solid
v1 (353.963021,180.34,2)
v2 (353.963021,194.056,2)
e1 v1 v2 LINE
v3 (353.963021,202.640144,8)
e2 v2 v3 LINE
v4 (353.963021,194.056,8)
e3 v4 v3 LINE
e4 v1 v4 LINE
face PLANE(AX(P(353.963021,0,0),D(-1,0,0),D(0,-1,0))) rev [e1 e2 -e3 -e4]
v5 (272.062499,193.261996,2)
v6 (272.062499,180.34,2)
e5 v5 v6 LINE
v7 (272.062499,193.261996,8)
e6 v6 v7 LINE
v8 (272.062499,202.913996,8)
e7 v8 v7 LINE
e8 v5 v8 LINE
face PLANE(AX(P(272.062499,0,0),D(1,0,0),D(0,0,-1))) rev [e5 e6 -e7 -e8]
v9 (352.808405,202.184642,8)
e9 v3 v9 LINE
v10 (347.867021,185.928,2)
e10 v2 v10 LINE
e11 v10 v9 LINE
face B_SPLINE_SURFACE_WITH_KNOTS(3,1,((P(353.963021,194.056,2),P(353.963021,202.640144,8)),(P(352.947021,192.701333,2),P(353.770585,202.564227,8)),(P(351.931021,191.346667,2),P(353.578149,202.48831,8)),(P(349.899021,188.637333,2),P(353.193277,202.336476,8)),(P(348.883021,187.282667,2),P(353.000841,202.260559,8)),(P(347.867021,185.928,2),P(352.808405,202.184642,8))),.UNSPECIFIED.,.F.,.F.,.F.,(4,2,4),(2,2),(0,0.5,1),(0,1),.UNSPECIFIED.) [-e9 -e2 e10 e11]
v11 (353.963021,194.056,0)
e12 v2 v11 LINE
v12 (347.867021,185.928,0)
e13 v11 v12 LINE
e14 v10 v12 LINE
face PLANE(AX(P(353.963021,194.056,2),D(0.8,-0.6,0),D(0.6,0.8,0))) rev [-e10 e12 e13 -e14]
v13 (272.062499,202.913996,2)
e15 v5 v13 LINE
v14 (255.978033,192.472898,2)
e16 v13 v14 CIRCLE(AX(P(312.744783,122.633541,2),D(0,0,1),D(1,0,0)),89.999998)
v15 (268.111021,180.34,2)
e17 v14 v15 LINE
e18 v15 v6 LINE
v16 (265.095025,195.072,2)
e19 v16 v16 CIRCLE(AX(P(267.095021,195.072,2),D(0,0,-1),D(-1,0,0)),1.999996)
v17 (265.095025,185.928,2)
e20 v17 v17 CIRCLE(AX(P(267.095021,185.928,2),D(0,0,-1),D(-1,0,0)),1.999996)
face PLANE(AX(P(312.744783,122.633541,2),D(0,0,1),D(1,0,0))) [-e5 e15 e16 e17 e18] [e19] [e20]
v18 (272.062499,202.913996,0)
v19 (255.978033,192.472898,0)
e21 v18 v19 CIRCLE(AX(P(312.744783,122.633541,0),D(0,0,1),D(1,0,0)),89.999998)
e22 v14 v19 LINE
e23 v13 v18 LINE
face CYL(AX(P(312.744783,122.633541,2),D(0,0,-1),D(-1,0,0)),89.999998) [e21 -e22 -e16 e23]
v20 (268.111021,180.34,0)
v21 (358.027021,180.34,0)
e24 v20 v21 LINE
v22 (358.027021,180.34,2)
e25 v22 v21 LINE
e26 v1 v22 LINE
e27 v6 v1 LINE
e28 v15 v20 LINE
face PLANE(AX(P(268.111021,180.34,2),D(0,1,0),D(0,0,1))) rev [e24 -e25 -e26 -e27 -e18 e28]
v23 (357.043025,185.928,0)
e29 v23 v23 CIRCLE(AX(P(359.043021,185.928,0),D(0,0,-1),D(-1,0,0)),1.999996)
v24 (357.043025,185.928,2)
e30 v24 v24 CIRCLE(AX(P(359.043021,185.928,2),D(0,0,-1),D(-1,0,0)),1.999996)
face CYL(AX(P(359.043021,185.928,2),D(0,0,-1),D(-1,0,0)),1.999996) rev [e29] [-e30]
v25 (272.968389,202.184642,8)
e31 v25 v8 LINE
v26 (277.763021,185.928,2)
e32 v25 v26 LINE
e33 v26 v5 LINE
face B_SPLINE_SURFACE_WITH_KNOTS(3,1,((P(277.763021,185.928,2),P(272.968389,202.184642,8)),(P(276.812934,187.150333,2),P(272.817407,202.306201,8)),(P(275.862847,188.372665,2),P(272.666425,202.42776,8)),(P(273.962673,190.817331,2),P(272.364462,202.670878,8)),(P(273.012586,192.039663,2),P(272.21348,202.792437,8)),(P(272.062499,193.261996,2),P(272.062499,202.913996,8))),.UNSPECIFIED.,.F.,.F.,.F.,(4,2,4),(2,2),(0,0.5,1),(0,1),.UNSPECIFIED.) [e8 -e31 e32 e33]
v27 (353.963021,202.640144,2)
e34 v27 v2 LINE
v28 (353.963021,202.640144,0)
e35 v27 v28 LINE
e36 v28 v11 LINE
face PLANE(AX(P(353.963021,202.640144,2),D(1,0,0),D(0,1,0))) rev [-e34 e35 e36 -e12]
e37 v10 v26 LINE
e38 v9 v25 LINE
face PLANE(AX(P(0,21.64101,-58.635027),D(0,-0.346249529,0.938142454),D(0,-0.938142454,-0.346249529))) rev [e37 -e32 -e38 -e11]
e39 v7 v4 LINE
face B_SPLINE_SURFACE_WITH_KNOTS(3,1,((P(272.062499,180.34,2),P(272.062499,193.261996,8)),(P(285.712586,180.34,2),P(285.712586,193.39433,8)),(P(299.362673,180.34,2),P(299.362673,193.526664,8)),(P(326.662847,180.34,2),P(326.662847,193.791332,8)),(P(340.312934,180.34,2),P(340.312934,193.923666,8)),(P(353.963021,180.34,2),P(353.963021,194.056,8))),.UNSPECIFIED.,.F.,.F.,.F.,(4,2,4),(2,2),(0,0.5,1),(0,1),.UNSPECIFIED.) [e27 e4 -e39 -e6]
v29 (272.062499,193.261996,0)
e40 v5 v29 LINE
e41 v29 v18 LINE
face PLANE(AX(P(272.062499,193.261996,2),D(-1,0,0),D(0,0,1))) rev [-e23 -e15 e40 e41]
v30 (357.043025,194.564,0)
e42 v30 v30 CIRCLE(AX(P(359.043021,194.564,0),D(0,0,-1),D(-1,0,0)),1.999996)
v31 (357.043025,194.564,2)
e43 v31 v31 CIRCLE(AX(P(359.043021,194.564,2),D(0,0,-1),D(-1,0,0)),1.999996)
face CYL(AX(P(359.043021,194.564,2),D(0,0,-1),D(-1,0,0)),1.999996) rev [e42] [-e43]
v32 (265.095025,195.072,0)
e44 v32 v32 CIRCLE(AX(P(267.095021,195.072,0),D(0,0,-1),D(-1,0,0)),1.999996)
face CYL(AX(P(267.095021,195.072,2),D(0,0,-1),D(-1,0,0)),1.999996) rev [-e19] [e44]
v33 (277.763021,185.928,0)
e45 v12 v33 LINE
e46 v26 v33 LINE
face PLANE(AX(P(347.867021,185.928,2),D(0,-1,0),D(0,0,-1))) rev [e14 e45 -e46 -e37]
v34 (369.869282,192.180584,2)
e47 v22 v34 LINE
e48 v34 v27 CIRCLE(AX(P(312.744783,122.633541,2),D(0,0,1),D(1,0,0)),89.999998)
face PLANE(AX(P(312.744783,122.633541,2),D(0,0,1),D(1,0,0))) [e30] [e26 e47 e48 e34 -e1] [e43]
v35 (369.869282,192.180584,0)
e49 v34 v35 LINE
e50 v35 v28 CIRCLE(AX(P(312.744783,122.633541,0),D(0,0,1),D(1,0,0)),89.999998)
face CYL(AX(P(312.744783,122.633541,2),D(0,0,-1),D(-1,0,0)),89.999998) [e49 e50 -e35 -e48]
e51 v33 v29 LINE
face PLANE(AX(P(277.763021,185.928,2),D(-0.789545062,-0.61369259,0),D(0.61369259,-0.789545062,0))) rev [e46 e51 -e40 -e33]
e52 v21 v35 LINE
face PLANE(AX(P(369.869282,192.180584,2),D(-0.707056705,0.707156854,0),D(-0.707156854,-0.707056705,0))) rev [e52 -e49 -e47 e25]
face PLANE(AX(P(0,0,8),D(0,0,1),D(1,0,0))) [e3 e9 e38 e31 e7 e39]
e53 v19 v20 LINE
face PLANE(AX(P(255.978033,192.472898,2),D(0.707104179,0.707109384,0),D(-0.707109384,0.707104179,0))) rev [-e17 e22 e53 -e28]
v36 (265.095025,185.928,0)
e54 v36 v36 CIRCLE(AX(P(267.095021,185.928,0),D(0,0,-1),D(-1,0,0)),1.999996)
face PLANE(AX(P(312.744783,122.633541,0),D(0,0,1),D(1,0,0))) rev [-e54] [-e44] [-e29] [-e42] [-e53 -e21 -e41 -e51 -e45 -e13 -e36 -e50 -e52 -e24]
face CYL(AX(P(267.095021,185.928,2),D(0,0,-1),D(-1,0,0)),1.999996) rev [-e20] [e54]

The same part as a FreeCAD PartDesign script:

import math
import FreeCAD as App
import Part
import Sketcher
Q = App.Units.Quantity

doc = App.newDocument("Part")
body = doc.addObject("PartDesign::Body", "Body")

sketch1 = body.newObject("Sketcher::SketchObject", "Sketch")
sketch1.AttachmentSupport = (doc.getObject("XY_Plane"), [""])
sketch1.MapMode = "FlatFace"
sketch1.addGeometry([
    Part.LineSegment(App.Vector(358, 180, 0), App.Vector(370, 192, 0)),
    Part.ArcOfCircle(Part.Circle(App.Vector(313, 123, 0), App.Vector(0, 0, 1), 90), math.radians(50.6), math.radians(62.74)),
    Part.LineSegment(App.Vector(354, 203, 0), App.Vector(354, 194, 0)),
    Part.LineSegment(App.Vector(354, 194, 0), App.Vector(348, 186, 0)),
    Part.LineSegment(App.Vector(348, 186, 0), App.Vector(278, 186, 0)),
    Part.LineSegment(App.Vector(278, 186, 0), App.Vector(272, 193, 0)),
    Part.LineSegment(App.Vector(272, 193, 0), App.Vector(272, 203, 0)),
    Part.ArcOfCircle(Part.Circle(App.Vector(313, 123, 0), App.Vector(0, 0, 1), 90), math.radians(116.87), math.radians(129.1)),
    Part.LineSegment(App.Vector(256, 192, 0), App.Vector(268, 180, 0)),
    Part.LineSegment(App.Vector(268, 180, 0), App.Vector(358, 180, 0)),
], False)
sketch1.addConstraint([
    Sketcher.Constraint("Coincident", 0, 2, 1, 1),
    Sketcher.Constraint("Coincident", 1, 2, 2, 1),
    Sketcher.Constraint("Coincident", 2, 2, 3, 1),
    Sketcher.Constraint("Coincident", 3, 2, 4, 1),
    Sketcher.Constraint("Coincident", 4, 2, 5, 1),
    Sketcher.Constraint("Coincident", 5, 2, 6, 1),
    Sketcher.Constraint("Coincident", 6, 2, 7, 1),
    Sketcher.Constraint("Coincident", 7, 2, 8, 1),
    Sketcher.Constraint("Coincident", 8, 2, 9, 1),
    Sketcher.Constraint("Coincident", 9, 2, 0, 1),
    Sketcher.Constraint("Vertical", 2),
    Sketcher.Constraint("Horizontal", 4),
    Sketcher.Constraint("Vertical", 6),
    Sketcher.Constraint("Horizontal", 9),
    Sketcher.Constraint("Coincident", 7, 3, 1, 3),
    Sketcher.Constraint("Equal", 1, 7),
    Sketcher.Constraint("DistanceX", 4, 2, 2, 2, Q("3 in")),
    Sketcher.Constraint("Distance", 3, Q("0.4 in")),
    Sketcher.Constraint("DistanceX", 4, 2, 4, 1, Q("2.76 in")),
    Sketcher.Constraint("DistanceX", 9, 1, 9, 2, Q("3.54 in")),
    Sketcher.Constraint("DistanceY", 6, 1, 6, 2, Q("0.38 in")),
    Sketcher.Constraint("DistanceY", -1, 1, 8, 2, Q("7.1 in")),
    Sketcher.Constraint("DistanceX", 3, 2, 9, 2, Q("0.4 in")),
    Sketcher.Constraint("DistanceY", -1, 1, 2, 2, Q("7.64 in")),
    Sketcher.Constraint("Radius", 1, Q("89.999998 mm")),
    Sketcher.Constraint("Distance", 0, Q("16.746301 mm")),
    Sketcher.Constraint("DistanceX", -1, 1, 5, 2, Q("272.062499 mm")),
    Sketcher.Constraint("DistanceY", -1, 1, 7, 2, Q("192.472898 mm")),
    Sketcher.Constraint("DistanceX", 1, 3, 0, 2, Q("57.124499 mm")),
    Sketcher.Constraint("Distance", 5, Q("9.288888 mm")),
    Sketcher.Constraint("DistanceY", 2, 2, 2, 1, Q("8.584144 mm")),
])
pad1 = body.newObject("PartDesign::Pad", "Pad")
pad1.Profile = sketch1
pad1.Length = 2

sketch2 = body.newObject("Sketcher::SketchObject", "Sketch001")
sketch2.AttachmentSupport = (doc.getObject("XY_Plane"), [""])
sketch2.MapMode = "FlatFace"
sketch2.addGeometry([
    Part.Circle(App.Vector(359, 194.6, 0), App.Vector(0, 0, 1), 2),
    Part.Circle(App.Vector(359, 185.9, 0), App.Vector(0, 0, 1), 2),
    Part.Circle(App.Vector(267.1, 185.9, 0), App.Vector(0, 0, 1), 2),
    Part.Circle(App.Vector(267.1, 195.1, 0), App.Vector(0, 0, 1), 2),
], False)
sketch2.addConstraint([
    Sketcher.Constraint("Equal", 0, 1),
    Sketcher.Constraint("Equal", 1, 2),
    Sketcher.Constraint("Equal", 2, 3),
    Sketcher.Constraint("Horizontal", 1, 3, 2, 3),
    Sketcher.Constraint("Vertical", 0, 3, 1, 3),
    Sketcher.Constraint("Vertical", 2, 3, 3, 3),
    Sketcher.Constraint("DistanceY", -1, 1, 0, 3, Q("7.66 in")),
    Sketcher.Constraint("DistanceY", -1, 1, 1, 3, Q("7.32 in")),
    Sketcher.Constraint("DistanceY", -1, 1, 3, 3, Q("7.68 in")),
    Sketcher.Constraint("DistanceX", 2, 3, 1, 3, Q("3.62 in")),
    Sketcher.Constraint("Diameter", 0, Q("3.999992 mm")),
    Sketcher.Constraint("DistanceX", -1, 1, 0, 3, Q("359.043021 mm")),
])
pocket1 = body.newObject("PartDesign::Pocket", "Pocket")
pocket1.Profile = sketch2
pocket1.Type = "ThroughAll"
pocket1.Reversed = True

sketch3 = body.newObject("Sketcher::SketchObject", "Sketch002")
sketch3.AttachmentSupport = (doc.getObject("XY_Plane"), [""])
sketch3.MapMode = "FlatFace"
sketch3.AttachmentOffset = App.Placement(App.Vector(0, 0, 2), App.Rotation())
sketch3.addGeometry([
    Part.LineSegment(App.Vector(272, 193, 0), App.Vector(272, 180, 0)),
    Part.LineSegment(App.Vector(272, 180, 0), App.Vector(354, 180, 0)),
    Part.LineSegment(App.Vector(354, 180, 0), App.Vector(354, 194, 0)),
    Part.LineSegment(App.Vector(354, 194, 0), App.Vector(348, 186, 0)),
    Part.LineSegment(App.Vector(348, 186, 0), App.Vector(278, 186, 0)),
    Part.LineSegment(App.Vector(278, 186, 0), App.Vector(272, 193, 0)),
], False)
sketch3.addConstraint([
    Sketcher.Constraint("Coincident", 0, 2, 1, 1),
    Sketcher.Constraint("Coincident", 1, 2, 2, 1),
    Sketcher.Constraint("Coincident", 2, 2, 3, 1),
    Sketcher.Constraint("Coincident", 3, 2, 4, 1),
    Sketcher.Constraint("Coincident", 4, 2, 5, 1),
    Sketcher.Constraint("Coincident", 5, 2, 0, 1),
    Sketcher.Constraint("Vertical", 0),
    Sketcher.Constraint("Horizontal", 1),
    Sketcher.Constraint("Vertical", 2),
    Sketcher.Constraint("Horizontal", 4),
    Sketcher.Constraint("DistanceX", 4, 2, 1, 2, Q("3 in")),
    Sketcher.Constraint("Distance", 3, Q("0.4 in")),
    Sketcher.Constraint("DistanceX", 4, 2, 4, 1, Q("2.76 in")),
    Sketcher.Constraint("DistanceY", 2, 1, 2, 2, Q("0.54 in")),
    Sketcher.Constraint("DistanceY", -1, 1, 0, 2, Q("7.1 in")),
    Sketcher.Constraint("DistanceX", 1, 1, 1, 2, Q("81.900522 mm")),
    Sketcher.Constraint("DistanceX", -1, 1, 0, 2, Q("272.062499 mm")),
    Sketcher.Constraint("Distance", 5, Q("9.288888 mm")),
])

sketch4 = body.newObject("Sketcher::SketchObject", "Sketch003")
sketch4.AttachmentSupport = (doc.getObject("XY_Plane"), [""])
sketch4.MapMode = "FlatFace"
sketch4.AttachmentOffset = App.Placement(App.Vector(0, 0, 8), App.Rotation())
sketch4.addGeometry([
    Part.LineSegment(App.Vector(272.062499, 202.913996, 0), App.Vector(272.062499, 193.261996, 0)),
    Part.LineSegment(App.Vector(272.062499, 193.261996, 0), App.Vector(353.963021, 194.056, 0)),
    Part.LineSegment(App.Vector(353.963021, 194.056, 0), App.Vector(353.963021, 202.640144, 0)),
    Part.LineSegment(App.Vector(353.963021, 202.640144, 0), App.Vector(352.808405, 202.184642, 0)),
    Part.LineSegment(App.Vector(352.808405, 202.184642, 0), App.Vector(272.968389, 202.184642, 0)),
    Part.LineSegment(App.Vector(272.968389, 202.184642, 0), App.Vector(272.062499, 202.913996, 0)),
], False)
sketch4.addConstraint([
    Sketcher.Constraint("Coincident", 0, 2, 1, 1),
    Sketcher.Constraint("Coincident", 1, 2, 2, 1),
    Sketcher.Constraint("Coincident", 2, 2, 3, 1),
    Sketcher.Constraint("Coincident", 3, 2, 4, 1),
    Sketcher.Constraint("Coincident", 4, 2, 5, 1),
    Sketcher.Constraint("Coincident", 5, 2, 0, 1),
    Sketcher.Constraint("Vertical", 0),
    Sketcher.Constraint("Vertical", 2),
    Sketcher.Constraint("Horizontal", 4),
    Sketcher.Constraint("DistanceY", 0, 2, 0, 1, Q("0.38 in")),
    Sketcher.Constraint("DistanceY", -1, 1, 1, 2, Q("7.64 in")),
    Sketcher.Constraint("DistanceX", -1, 1, 0, 2, Q("272.062499 mm")),
    Sketcher.Constraint("DistanceY", 3, 2, 2, 2, Q("0.455502 mm")),
    Sketcher.Constraint("Distance", 1, Q("81.904371 mm")),
    Sketcher.Constraint("Distance", 5, Q("1.163011 mm")),
    Sketcher.Constraint("DistanceX", 4, 2, 4, 1, Q("79.840016 mm")),
    Sketcher.Constraint("DistanceY", 2, 1, 2, 2, Q("8.584144 mm")),
    Sketcher.Constraint("DistanceX", -1, 1, 1, 2, Q("353.963021 mm")),
])

additiveloft = body.newObject("PartDesign::AdditiveLoft", "AdditiveLoft")
additiveloft.Profile = sketch3
additiveloft.Sections = [sketch4]

doc.recompute()
